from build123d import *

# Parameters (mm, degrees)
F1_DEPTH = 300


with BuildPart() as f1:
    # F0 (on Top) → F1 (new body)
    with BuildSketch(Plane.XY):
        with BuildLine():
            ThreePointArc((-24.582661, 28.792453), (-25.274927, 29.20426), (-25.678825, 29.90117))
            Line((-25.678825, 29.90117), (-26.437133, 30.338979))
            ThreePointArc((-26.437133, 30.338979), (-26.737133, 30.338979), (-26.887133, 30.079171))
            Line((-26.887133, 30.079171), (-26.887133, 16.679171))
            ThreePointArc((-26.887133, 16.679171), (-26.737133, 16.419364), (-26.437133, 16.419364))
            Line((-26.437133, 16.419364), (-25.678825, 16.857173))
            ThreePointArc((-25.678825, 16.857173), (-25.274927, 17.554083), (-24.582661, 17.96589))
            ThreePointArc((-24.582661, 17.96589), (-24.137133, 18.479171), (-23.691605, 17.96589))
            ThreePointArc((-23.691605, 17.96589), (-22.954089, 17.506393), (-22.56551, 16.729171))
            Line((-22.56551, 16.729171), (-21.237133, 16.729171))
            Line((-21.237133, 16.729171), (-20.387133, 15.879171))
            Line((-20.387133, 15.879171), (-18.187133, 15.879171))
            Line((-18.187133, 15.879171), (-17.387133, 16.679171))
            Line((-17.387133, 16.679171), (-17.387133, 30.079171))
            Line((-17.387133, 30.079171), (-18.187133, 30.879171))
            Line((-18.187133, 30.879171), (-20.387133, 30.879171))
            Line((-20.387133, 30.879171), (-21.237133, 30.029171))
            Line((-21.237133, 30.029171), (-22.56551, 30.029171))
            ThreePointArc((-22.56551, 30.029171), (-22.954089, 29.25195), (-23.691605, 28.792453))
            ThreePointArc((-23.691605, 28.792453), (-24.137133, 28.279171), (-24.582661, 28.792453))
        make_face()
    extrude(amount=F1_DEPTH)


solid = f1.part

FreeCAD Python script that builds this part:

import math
import FreeCAD as App
import Part
import Sketcher
Q = App.Units.Quantity

doc = App.newDocument("Part")
params = doc.addObject("Spreadsheet::Sheet", "Params")
for row, (alias, value) in enumerate([
    ("sketch1_radius", "0.3 mm"),
    ("sketch1_radius2", "1.599999 mm"),
    ("sketch1_radius3", "0.45 mm"),
    ("sketch1_width", "2.2 mm"),
    ("sketch1_height", "13.4 mm"),
    ("pad1_length", "300 mm"),
], start=1):
    params.set(f"A{row}", alias)
    params.set(f"B{row}", "=" + value)
    params.setAlias(f"B{row}", alias)

body = doc.addObject("PartDesign::Body", "Body")

# Sketch on XY plane
sketch1 = doc.addObject("Sketcher::SketchObject", "Sketch")
body.addObject(sketch1)
sketch1.AttachmentSupport = (doc.XY_Plane, [""])
sketch1.MapMode = "FlatFace"
sketch1.addGeometry(Part.ArcOfCircle(Part.Circle(App.Vector(-24.14, 30.33, 0), App.Vector(0, 0, 1), 1.6), math.radians(-164), math.radians(-106)), False)
sketch1.addGeometry(Part.LineSegment(App.Vector(-25.68, 29.9, 0), App.Vector(-26.44, 30.34, 0)), False)
sketch1.addGeometry(Part.ArcOfCircle(Part.Circle(App.Vector(-26.59, 30.08, 0), App.Vector(0, 0, 1), 0.3), math.radians(60), math.radians(180)), False)
sketch1.addGeometry(Part.LineSegment(App.Vector(-26.89, 30.08, 0), App.Vector(-26.89, 16.68, 0)), False)
sketch1.addGeometry(Part.ArcOfCircle(Part.Circle(App.Vector(-26.59, 16.68, 0), App.Vector(0, 0, 1), 0.3), math.radians(-180), math.radians(-60)), False)
sketch1.addGeometry(Part.LineSegment(App.Vector(-26.44, 16.42, 0), App.Vector(-25.68, 16.86, 0)), False)
sketch1.addGeometry(Part.ArcOfCircle(Part.Circle(App.Vector(-24.14, 16.43, 0), App.Vector(0, 0, 1), 1.6), math.radians(106), math.radians(164)), False)
sketch1.addGeometry(Part.ArcOfCircle(Part.Circle(App.Vector(-24.14, 18.03, 0), App.Vector(0, 0, 1), 0.45), math.radians(-8), math.radians(188)), False)
sketch1.addGeometry(Part.ArcOfCircle(Part.Circle(App.Vector(-24.14, 16.43, 0), App.Vector(0, 0, 1), 1.6), math.radians(11), math.radians(74)), False)
sketch1.addGeometry(Part.LineSegment(App.Vector(-22.57, 16.73, 0), App.Vector(-21.24, 16.73, 0)), False)
sketch1.addGeometry(Part.LineSegment(App.Vector(-21.24, 16.73, 0), App.Vector(-20.39, 15.88, 0)), False)
sketch1.addGeometry(Part.LineSegment(App.Vector(-20.39, 15.88, 0), App.Vector(-18.19, 15.88, 0)), False)
sketch1.addGeometry(Part.LineSegment(App.Vector(-18.19, 15.88, 0), App.Vector(-17.39, 16.68, 0)), False)
sketch1.addGeometry(Part.LineSegment(App.Vector(-17.39, 16.68, 0), App.Vector(-17.39, 30.08, 0)), False)
sketch1.addGeometry(Part.LineSegment(App.Vector(-17.39, 30.08, 0), App.Vector(-18.19, 30.88, 0)), False)
sketch1.addGeometry(Part.LineSegment(App.Vector(-18.19, 30.88, 0), App.Vector(-20.39, 30.88, 0)), False)
sketch1.addGeometry(Part.LineSegment(App.Vector(-20.39, 30.88, 0), App.Vector(-21.24, 30.03, 0)), False)
sketch1.addGeometry(Part.LineSegment(App.Vector(-21.24, 30.03, 0), App.Vector(-22.57, 30.03, 0)), False)
sketch1.addGeometry(Part.ArcOfCircle(Part.Circle(App.Vector(-24.14, 30.33, 0), App.Vector(0, 0, 1), 1.6), math.radians(-74), math.radians(-11)), False)
sketch1.addGeometry(Part.ArcOfCircle(Part.Circle(App.Vector(-24.14, 28.73, 0), App.Vector(0, 0, 1), 0.45), math.radians(172), math.radians(368)), False)
sketch1.addConstraint(Sketcher.Constraint("Coincident", 0, 1, 1, 1))
sketch1.addConstraint(Sketcher.Constraint("Tangent", 1, 2, 2, 1))
sketch1.addConstraint(Sketcher.Constraint("Tangent", 2, 2, 3, 1))
sketch1.addConstraint(Sketcher.Constraint("Coincident", 3, 2, 4, 1))
sketch1.addConstraint(Sketcher.Constraint("Tangent", 4, 2, 5, 1))
sketch1.addConstraint(Sketcher.Constraint("Coincident", 5, 2, 6, 2))
sketch1.addConstraint(Sketcher.Constraint("Coincident", 6, 1, 7, 2))
sketch1.addConstraint(Sketcher.Constraint("Coincident", 7, 1, 8, 2))
sketch1.addConstraint(Sketcher.Constraint("Coincident", 8, 1, 9, 1))
sketch1.addConstraint(Sketcher.Constraint("Coincident", 9, 2, 10, 1))
sketch1.addConstraint(Sketcher.Constraint("Coincident", 10, 2, 11, 1))
sketch1.addConstraint(Sketcher.Constraint("Coincident", 11, 2, 12, 1))
sketch1.addConstraint(Sketcher.Constraint("Coincident", 12, 2, 13, 1))
sketch1.addConstraint(Sketcher.Constraint("Coincident", 13, 2, 14, 1))
sketch1.addConstraint(Sketcher.Constraint("Coincident", 14, 2, 15, 1))
sketch1.addConstraint(Sketcher.Constraint("Coincident", 15, 2, 16, 1))
sketch1.addConstraint(Sketcher.Constraint("Coincident", 16, 2, 17, 1))
sketch1.addConstraint(Sketcher.Constraint("Coincident", 17, 2, 18, 2))
sketch1.addConstraint(Sketcher.Constraint("Coincident", 18, 1, 19, 2))
sketch1.addConstraint(Sketcher.Constraint("Coincident", 19, 1, 0, 2))
sketch1.addConstraint(Sketcher.Constraint("Vertical", 3))
sketch1.addConstraint(Sketcher.Constraint("Horizontal", 9))
sketch1.addConstraint(Sketcher.Constraint("Horizontal", 11))
sketch1.addConstraint(Sketcher.Constraint("Vertical", 13))
sketch1.addConstraint(Sketcher.Constraint("Horizontal", 15))
sketch1.addConstraint(Sketcher.Constraint("Horizontal", 17))
sketch1.addConstraint(Sketcher.Constraint("Coincident", 8, 3, 6, 3))
sketch1.addConstraint(Sketcher.Constraint("Coincident", 18, 3, 0, 3))
sketch1.addConstraint(Sketcher.Constraint("Equal", 2, 4))
sketch1.addConstraint(Sketcher.Constraint("Equal", 0, 6))
sketch1.addConstraint(Sketcher.Constraint("Equal", 8, 18))
sketch1.addConstraint(Sketcher.Constraint("Equal", 7, 19))
sketch1.addConstraint(Sketcher.Constraint("Perpendicular", 10, 12))
sketch1.addConstraint(Sketcher.Constraint("Perpendicular", 12, 14))
sketch1.addConstraint(Sketcher.Constraint("Perpendicular", 14, 16))
sketch1.addConstraint(Sketcher.Constraint("Horizontal", 4, 3, 3, 2))
sketch1.addConstraint(Sketcher.Constraint("Horizontal", 6, 1, 7, 1))
sketch1.addConstraint(Sketcher.Constraint("Horizontal", 3, 2, 12, 2))
sketch1.addConstraint(Sketcher.Constraint("Horizontal", 2, 2, 13, 2))
sketch1.addConstraint(Sketcher.Constraint("Horizontal", 18, 1, 19, 1))
sketch1.addConstraint(Sketcher.Constraint("Vertical", 0, 3, 6, 3))
sketch1.addConstraint(Sketcher.Constraint("Vertical", 7, 3, 8, 3))
sketch1.addConstraint(Sketcher.Constraint("Vertical", 1, 2, 4, 2))
sketch1.addConstraint(Sketcher.Constraint("Vertical", 0, 1, 5, 2))
sketch1.addConstraint(Sketcher.Constraint("Vertical", 11, 2, 14, 2))
sketch1.addConstraint(Sketcher.Constraint("Vertical", 10, 2, 15, 2))
sketch1.addConstraint(Sketcher.Constraint("Vertical", 9, 2, 16, 2))
sketch1.addConstraint(Sketcher.Constraint("Vertical", 8, 1, 17, 2))
sketch1.addConstraint(Sketcher.Constraint("Vertical", 7, 1, 18, 1))
sketch1.addConstraint(Sketcher.Constraint("Radius", 2, Q("0.3 mm")))
sketch1.addConstraint(Sketcher.Constraint("Radius", 8, Q("1.599999 mm")))
sketch1.addConstraint(Sketcher.Constraint("Angle", 1, Q("150.000019 deg")))
sketch1.addConstraint(Sketcher.Constraint("Radius", 7, Q("0.45 mm")))
sketch1.addConstraint(Sketcher.Constraint("DistanceX", 11, 1, 11, 2, Q("2.2 mm")))
sketch1.addConstraint(Sketcher.Constraint("DistanceY", 3, 2, 3, 1, Q("13.4 mm")))
sketch1.addConstraint(Sketcher.Constraint("DistanceX", 10, 2, 12, 2, Q("3 mm")))
sketch1.addConstraint(Sketcher.Constraint("DistanceY", 8, 3, 7, 3, Q("1.599999 mm")))
sketch1.addConstraint(Sketcher.Constraint("DistanceY", 7, 3, 18, 3, Q("12.3 mm")))
sketch1.addConstraint(Sketcher.Constraint("DistanceX", 1, 2, 18, 3, Q("2.3 mm")))
sketch1.addConstraint(Sketcher.Constraint("DistanceY", 8, 3, 8, 1, Q("0.299999 mm")))
sketch1.addConstraint(Sketcher.Constraint("DistanceX", 8, 3, 9, 2, Q("2.899999 mm")))
sketch1.addConstraint(Sketcher.Constraint("DistanceY", -1, 1, 0, 3, Q("30.329168 mm")))
sketch1.addConstraint(Sketcher.Constraint("DistanceX", 6, 1, -1, 1, Q("24.582661 mm")))
sketch1.setExpression("Constraints[49]", "Params.sketch1_radius")
sketch1.setExpression("Constraints[50]", "Params.sketch1_radius2")
sketch1.setExpression("Constraints[52]", "Params.sketch1_radius3")
sketch1.setExpression("Constraints[53]", "Params.sketch1_width")
sketch1.setExpression("Constraints[54]", "Params.sketch1_height")
pad1 = doc.addObject("PartDesign::Pad", "Pad")
body.addObject(pad1)
pad1.Profile = sketch1
pad1.setExpression("Length", "Params.pad1_length")

doc.recompute()
